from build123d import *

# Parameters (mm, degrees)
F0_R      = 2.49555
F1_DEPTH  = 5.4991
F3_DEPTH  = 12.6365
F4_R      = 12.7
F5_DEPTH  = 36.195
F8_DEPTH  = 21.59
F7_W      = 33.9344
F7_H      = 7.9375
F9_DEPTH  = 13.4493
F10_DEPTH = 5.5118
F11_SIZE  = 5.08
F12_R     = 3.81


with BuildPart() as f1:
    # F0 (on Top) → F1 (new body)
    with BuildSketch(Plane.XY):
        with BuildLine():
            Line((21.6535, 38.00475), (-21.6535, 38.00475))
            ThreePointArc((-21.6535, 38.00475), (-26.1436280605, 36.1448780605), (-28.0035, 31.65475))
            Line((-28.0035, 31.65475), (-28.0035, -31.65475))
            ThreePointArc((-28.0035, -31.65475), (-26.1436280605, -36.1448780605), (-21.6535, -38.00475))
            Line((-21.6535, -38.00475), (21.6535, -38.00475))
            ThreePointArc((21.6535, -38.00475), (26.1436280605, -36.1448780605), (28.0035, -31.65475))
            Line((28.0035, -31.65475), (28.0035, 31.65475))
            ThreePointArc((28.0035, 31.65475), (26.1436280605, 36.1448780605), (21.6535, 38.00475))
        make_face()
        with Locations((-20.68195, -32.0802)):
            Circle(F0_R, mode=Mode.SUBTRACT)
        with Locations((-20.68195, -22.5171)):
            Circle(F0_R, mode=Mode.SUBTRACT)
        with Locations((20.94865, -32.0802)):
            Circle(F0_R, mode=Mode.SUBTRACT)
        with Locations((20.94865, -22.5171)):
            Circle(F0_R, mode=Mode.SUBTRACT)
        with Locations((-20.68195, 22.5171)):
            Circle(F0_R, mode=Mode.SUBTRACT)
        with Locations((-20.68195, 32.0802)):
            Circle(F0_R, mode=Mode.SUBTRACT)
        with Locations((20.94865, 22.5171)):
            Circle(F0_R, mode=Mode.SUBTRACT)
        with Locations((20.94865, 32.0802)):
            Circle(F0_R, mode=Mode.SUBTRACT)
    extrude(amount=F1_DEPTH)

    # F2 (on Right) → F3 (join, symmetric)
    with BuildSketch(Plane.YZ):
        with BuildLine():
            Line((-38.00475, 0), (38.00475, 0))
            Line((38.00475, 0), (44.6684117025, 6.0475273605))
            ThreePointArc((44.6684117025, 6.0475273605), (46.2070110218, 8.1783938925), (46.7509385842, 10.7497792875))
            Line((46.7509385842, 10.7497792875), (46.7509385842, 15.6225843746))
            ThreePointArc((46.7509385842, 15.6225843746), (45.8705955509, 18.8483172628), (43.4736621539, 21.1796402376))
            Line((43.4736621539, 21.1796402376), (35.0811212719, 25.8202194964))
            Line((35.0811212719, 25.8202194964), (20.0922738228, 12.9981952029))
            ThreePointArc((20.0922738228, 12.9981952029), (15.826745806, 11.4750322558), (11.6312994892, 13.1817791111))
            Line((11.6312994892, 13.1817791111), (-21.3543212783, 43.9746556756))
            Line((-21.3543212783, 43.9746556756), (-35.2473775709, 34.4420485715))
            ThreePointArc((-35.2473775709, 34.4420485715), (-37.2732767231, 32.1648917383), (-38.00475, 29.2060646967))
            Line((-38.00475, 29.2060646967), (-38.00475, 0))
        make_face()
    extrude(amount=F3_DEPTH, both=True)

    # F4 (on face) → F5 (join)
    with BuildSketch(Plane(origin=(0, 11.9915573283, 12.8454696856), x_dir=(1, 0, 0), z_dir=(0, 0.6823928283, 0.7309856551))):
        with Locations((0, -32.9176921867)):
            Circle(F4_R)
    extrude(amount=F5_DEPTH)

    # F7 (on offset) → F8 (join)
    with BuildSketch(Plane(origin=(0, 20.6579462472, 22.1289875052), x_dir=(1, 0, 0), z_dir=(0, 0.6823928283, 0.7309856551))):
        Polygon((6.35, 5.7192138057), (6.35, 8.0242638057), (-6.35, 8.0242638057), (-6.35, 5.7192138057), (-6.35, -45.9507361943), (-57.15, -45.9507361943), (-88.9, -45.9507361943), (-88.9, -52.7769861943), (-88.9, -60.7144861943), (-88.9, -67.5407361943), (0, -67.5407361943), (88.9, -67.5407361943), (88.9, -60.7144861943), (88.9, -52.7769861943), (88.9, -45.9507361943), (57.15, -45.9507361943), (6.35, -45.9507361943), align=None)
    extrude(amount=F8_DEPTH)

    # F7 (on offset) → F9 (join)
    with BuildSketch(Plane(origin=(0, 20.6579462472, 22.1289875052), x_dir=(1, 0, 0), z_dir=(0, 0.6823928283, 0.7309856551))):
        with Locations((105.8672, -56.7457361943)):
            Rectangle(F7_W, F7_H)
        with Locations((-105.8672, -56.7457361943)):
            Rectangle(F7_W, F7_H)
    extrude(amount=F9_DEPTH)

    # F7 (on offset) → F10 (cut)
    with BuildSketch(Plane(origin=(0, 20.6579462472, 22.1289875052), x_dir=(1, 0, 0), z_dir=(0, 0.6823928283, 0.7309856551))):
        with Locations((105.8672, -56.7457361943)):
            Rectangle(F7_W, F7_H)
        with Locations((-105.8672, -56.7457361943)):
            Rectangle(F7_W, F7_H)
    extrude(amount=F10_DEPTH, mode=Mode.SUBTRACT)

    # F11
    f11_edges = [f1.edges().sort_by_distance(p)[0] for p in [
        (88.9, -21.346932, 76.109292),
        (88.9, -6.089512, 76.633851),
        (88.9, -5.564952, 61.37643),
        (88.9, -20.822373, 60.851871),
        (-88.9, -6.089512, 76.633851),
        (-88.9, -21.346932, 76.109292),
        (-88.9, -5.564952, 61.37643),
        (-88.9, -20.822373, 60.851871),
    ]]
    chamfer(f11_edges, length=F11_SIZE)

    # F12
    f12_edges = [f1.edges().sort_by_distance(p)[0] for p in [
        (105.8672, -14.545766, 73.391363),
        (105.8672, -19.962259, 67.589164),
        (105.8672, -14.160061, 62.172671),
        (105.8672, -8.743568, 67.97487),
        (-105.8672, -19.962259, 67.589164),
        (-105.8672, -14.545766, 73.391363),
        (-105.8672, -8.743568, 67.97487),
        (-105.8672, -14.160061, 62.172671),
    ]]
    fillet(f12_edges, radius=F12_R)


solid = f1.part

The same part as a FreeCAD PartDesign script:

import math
import FreeCAD as App
import Part
import Sketcher
from FreeCAD import Vector
Q = App.Units.Quantity


def edges_at(feature, points):
    """Names of the edges that pass closest to the given points."""
    edges = feature.Shape.Edges
    near = lambda p: min(range(len(edges)), key=lambda i: edges[i].distToShape(Part.Vertex(*p))[0])
    return sorted({f"Edge{near(p) + 1}" for p in points})

doc = App.newDocument("Part")
params = doc.addObject("Spreadsheet::Sheet", "Params")
for row, (alias, value) in enumerate([
    ("sketch1_radius", "0.25 in"),
    ("sketch1_width", "1.705 in"),
    ("pad1_length", "0.2165 in"),
    ("sketch2_radius", "0.25 in"),
    ("pad2_length", "0.995 in"),
    ("sketch3_diameter", "1 in"),
    ("pad3_length", "1.425 in"),
    ("sketch4_width", "7 in"),
    ("sketch4_width2", "0.5 in"),
    ("sketch4_height", "0.85 in"),
    ("sketch4_height2", "2.125 in"),
    ("pad4_length", "0.85 in"),
    ("sketch5_width", "1.336 in"),
    ("sketch5_height", "0.3125 in"),
    ("pad5_length", "0.5295 in"),
    ("sketch6_width", "1.336 in"),
    ("sketch6_height", "0.3125 in"),
    ("pocket1_length", "0.217 in"),
    ("chamfer_size", "0.2 in"),
    ("fillet_radius", "0.15 in"),
], start=1):
    params.set(f"A{row}", alias)
    params.set(f"B{row}", "=" + value)
    params.setAlias(f"B{row}", alias)

body = doc.addObject("PartDesign::Body", "Body")

sketch1 = body.newObject("Sketcher::SketchObject", "Sketch")
sketch1.AttachmentSupport = (doc.getObject("XY_Plane"), [""])
sketch1.MapMode = "FlatFace"
sketch1.addGeometry([
    Part.LineSegment(Vector(21.6535, 38.00475, 0), Vector(-21.6535, 38.00475, 0)),
    Part.ArcOfCircle(Part.Circle(Vector(-21.6535, 31.65475, 0), Vector(0, 0, 1), 6.35), math.radians(90), math.radians(180)),
    Part.LineSegment(Vector(-28.0035, 31.65475, 0), Vector(-28.0035, -31.65475, 0)),
    Part.ArcOfCircle(Part.Circle(Vector(-21.6535, -31.65475, 0), Vector(0, 0, 1), 6.35), math.radians(180), math.radians(270)),
    Part.LineSegment(Vector(-21.6535, -38.00475, 0), Vector(21.6535, -38.00475, 0)),
    Part.ArcOfCircle(Part.Circle(Vector(21.6535, -31.65475, 0), Vector(0, 0, 1), 6.35), math.radians(-90), math.radians(0)),
    Part.LineSegment(Vector(28.0035, -31.65475, 0), Vector(28.0035, 31.65475, 0)),
    Part.ArcOfCircle(Part.Circle(Vector(21.6535, 31.65475, 0), Vector(0, 0, 1), 6.35), math.radians(0), math.radians(90)),
    Part.Circle(Vector(-20.68195, -32.0802, 0), Vector(0, 0, 1), 2.49555),
    Part.Circle(Vector(-20.68195, -22.5171, 0), Vector(0, 0, 1), 2.49555),
    Part.Circle(Vector(20.94865, -32.0802, 0), Vector(0, 0, 1), 2.49555),
    Part.Circle(Vector(20.94865, -22.5171, 0), Vector(0, 0, 1), 2.49555),
    Part.Circle(Vector(-20.68195, 22.5171, 0), Vector(0, 0, 1), 2.49555),
    Part.Circle(Vector(-20.68195, 32.0802, 0), Vector(0, 0, 1), 2.49555),
    Part.Circle(Vector(20.94865, 22.5171, 0), Vector(0, 0, 1), 2.49555),
    Part.Circle(Vector(20.94865, 32.0802, 0), Vector(0, 0, 1), 2.49555),
], False)
sketch1.addConstraint([
    Sketcher.Constraint("Tangent", 0, 2, 1, 1),
    Sketcher.Constraint("Tangent", 1, 2, 2, 1),
    Sketcher.Constraint("Tangent", 2, 2, 3, 1),
    Sketcher.Constraint("Tangent", 3, 2, 4, 1),
    Sketcher.Constraint("Tangent", 4, 2, 5, 1),
    Sketcher.Constraint("Tangent", 5, 2, 6, 1),
    Sketcher.Constraint("Tangent", 6, 2, 7, 1),
    Sketcher.Constraint("Tangent", 7, 2, 0, 1),
    Sketcher.Constraint("Horizontal", 0),
    Sketcher.Constraint("Vertical", 2),
    Sketcher.Constraint("Horizontal", 4),
    Sketcher.Constraint("Vertical", 6),
    Sketcher.Constraint("Equal", 1, 3),
    Sketcher.Constraint("Equal", 3, 5),
    Sketcher.Constraint("Equal", 5, 7),
    Sketcher.Constraint("Equal", 8, 9),
    Sketcher.Constraint("Equal", 9, 10),
    Sketcher.Constraint("Equal", 10, 11),
    Sketcher.Constraint("Equal", 11, 12),
    Sketcher.Constraint("Equal", 12, 13),
    Sketcher.Constraint("Equal", 13, 14),
    Sketcher.Constraint("Equal", 14, 15),
    Sketcher.Constraint("Symmetric", 1, 3, 5, 3, -1, 1),
    Sketcher.Constraint("Symmetric", 9, 3, 12, 3, -1),
    Sketcher.Constraint("Symmetric", 8, 3, 13, 3, -1),
    Sketcher.Constraint("Symmetric", 11, 3, 14, 3, -1),
    Sketcher.Constraint("Symmetric", 10, 3, 15, 3, -1),
    Sketcher.Constraint("Horizontal", 8, 3, 10, 3),
    Sketcher.Constraint("Horizontal", 9, 3, 11, 3),
    Sketcher.Constraint("Vertical", 8, 3, 9, 3),
    Sketcher.Constraint("Vertical", 10, 3, 11, 3),
    Sketcher.Constraint("Radius", 1, Q("0.25 in")),
    Sketcher.Constraint("Diameter", 8, Q("0.1965 in")),
    Sketcher.Constraint("DistanceX", 0, 2, 0, 1, Q("1.705 in")),
    Sketcher.Constraint("DistanceY", 2, 2, 2, 1, Q("2.4925 in")),
    Sketcher.Constraint("DistanceY", 8, 3, -1, 1, Q("1.263 in")),
    Sketcher.Constraint("DistanceX", 8, 3, 10, 3, Q("1.639 in")),
    Sketcher.Constraint("DistanceY", 9, 3, 12, 3, Q("1.773 in")),
    Sketcher.Constraint("DistanceX", 8, 3, -1, 1, Q("20.68195 mm")),
])
sketch1.setExpression("Constraints[31]", "Params.sketch1_radius")
sketch1.setExpression("Constraints[33]", "Params.sketch1_width")
pad1 = body.newObject("PartDesign::Pad", "Pad")
pad1.Profile = sketch1
pad1.setExpression("Length", "Params.pad1_length")

sketch2 = body.newObject("Sketcher::SketchObject", "Sketch001")
sketch2.AttachmentSupport = (doc.getObject("YZ_Plane"), [""])
sketch2.MapMode = "FlatFace"
sketch2.addGeometry([
    Part.LineSegment(Vector(-38.00475, 0, 0), Vector(38.00475, 0, 0)),
    Part.LineSegment(Vector(38.00475, 0, 0), Vector(44.668412, 6.047527, 0)),
    Part.ArcOfCircle(Part.Circle(Vector(40.400939, 10.749779, 0), Vector(0, 0, 1), 6.35), math.radians(-47.775058), math.radians(0)),
    Part.LineSegment(Vector(46.750939, 10.749779, 0), Vector(46.750939, 15.622584, 0)),
    Part.ArcOfCircle(Part.Circle(Vector(40.400939, 15.622584, 0), Vector(0, 0, 1), 6.35), math.radians(0), math.radians(61.059999)),
    Part.LineSegment(Vector(43.473662, 21.17964, 0), Vector(35.081121, 25.820219, 0)),
    Part.LineSegment(Vector(35.081121, 25.820219, 0), Vector(20.092274, 12.998195, 0)),
    Part.ArcOfCircle(Part.Circle(Vector(15.964494, 17.823538, 0), Vector(0, 0, 1), 6.35), math.radians(-133.030911), math.radians(-49.455075)),
    Part.LineSegment(Vector(11.631299, 13.181779, 0), Vector(-21.354321, 43.974656, 0)),
    Part.LineSegment(Vector(-21.354321, 43.974656, 0), Vector(-35.247378, 34.442049, 0)),
    Part.ArcOfCircle(Part.Circle(Vector(-31.65475, 29.206065, 0), Vector(0, 0, 1), 6.35), math.radians(124.455648), math.radians(180)),
    Part.LineSegment(Vector(-38.00475, 29.206065, 0), Vector(-38.00475, 0, 0)),
], False)
sketch2.addConstraint([
    Sketcher.Constraint("Coincident", 0, 2, 1, 1),
    Sketcher.Constraint("Tangent", 1, 2, 2, 1),
    Sketcher.Constraint("Tangent", 2, 2, 3, 1),
    Sketcher.Constraint("Tangent", 3, 2, 4, 1),
    Sketcher.Constraint("Tangent", 4, 2, 5, 1),
    Sketcher.Constraint("Coincident", 5, 2, 6, 1),
    Sketcher.Constraint("Tangent", 6, 2, 7, 2),
    Sketcher.Constraint("Tangent", 7, 1, 8, 1),
    Sketcher.Constraint("Coincident", 8, 2, 9, 1),
    Sketcher.Constraint("Tangent", 9, 2, 10, 1),
    Sketcher.Constraint("Tangent", 10, 2, 11, 1),
    Sketcher.Constraint("Coincident", 11, 2, 0, 1),
    Sketcher.Constraint("Horizontal", 0),
    Sketcher.Constraint("Vertical", 3),
    Sketcher.Constraint("Vertical", 11),
    Sketcher.Constraint("Equal", 2, 4),
    Sketcher.Constraint("Equal", 4, 7),
    Sketcher.Constraint("Equal", 7, 10),
    Sketcher.Constraint("Symmetric", 0, 2, 11, 2, -1, 1),
    Sketcher.Constraint("Radius", 2, Q("0.25 in")),
    Sketcher.Constraint("Angle", 5, Q("151.059999 deg")),
    Sketcher.Constraint("DistanceX", 0, 1, 0, 2, Q("2.9925 in")),
    Sketcher.Constraint("DistanceY", 4, 2, 5, 2, Q("0.1827 in")),
    Sketcher.Constraint("DistanceX", -1, 1, 7, 1, Q("11.631299 mm")),
    Sketcher.Constraint("DistanceY", 2, 3, 7, 1, Q("2.432 mm")),
    Sketcher.Constraint("Distance", 1, Q("8.998721 mm")),
    Sketcher.Constraint("DistanceY", 3, 1, 3, 2, Q("4.872805 mm")),
    Sketcher.Constraint("DistanceY", 11, 2, 11, 1, Q("29.206065 mm")),
    Sketcher.Constraint("DistanceX", -1, 1, 2, 3, Q("40.400939 mm")),
    Sketcher.Constraint("DistanceY", -1, 1, 7, 3, Q("17.823538 mm")),
    Sketcher.Constraint("DistanceX", 8, 2, -1, 1, Q("21.354321 mm")),
])
sketch2.setExpression("Constraints[19]", "Params.sketch2_radius")
pad2 = body.newObject("PartDesign::Pad", "Pad001")
pad2.Profile = sketch2
pad2.setExpression("Length", "Params.pad2_length")
pad2.Midplane = True

sketch3 = body.newObject("Sketcher::SketchObject", "Sketch002")
sketch3.Placement = App.Placement(Vector(0, 11.991557, 12.84547), App.Rotation(Vector(1, 0, 0), Vector(0, 0.730985655, -0.682392828), Vector(0, 0.682392828, 0.730985655), "ZXY"))
sketch3.addGeometry(Part.Circle(Vector(0, -32.917692, 0), Vector(0, 0, 1), 12.7), False)
sketch3.addConstraint([
    Sketcher.Constraint("PointOnObject", 0, 3, -2),
    Sketcher.Constraint("Diameter", 0, Q("1 in")),
    Sketcher.Constraint("DistanceY", 0, 3, -1, 1, Q("32.917692 mm")),
])
sketch3.setExpression("Constraints[1]", "Params.sketch3_diameter")
pad3 = body.newObject("PartDesign::Pad", "Pad002")
pad3.Profile = sketch3
pad3.setExpression("Length", "Params.pad3_length")

sketch4 = body.newObject("Sketcher::SketchObject", "Sketch003")
sketch4.Placement = App.Placement(Vector(0, 20.657946, 22.128988), App.Rotation(Vector(1, 0, 0), Vector(0, 0.730985655, -0.682392828), Vector(0, 0.682392828, 0.730985655), "ZXY"))
sketch4.addGeometry([
    Part.LineSegment(Vector(6.35, 8.024264, 0), Vector(-6.35, 8.024264, 0)),
    Part.LineSegment(Vector(-6.35, 8.024264, 0), Vector(-6.35, -45.950736, 0)),
    Part.LineSegment(Vector(-6.35, -45.950736, 0), Vector(-88.9, -45.950736, 0)),
    Part.LineSegment(Vector(-88.9, -45.950736, 0), Vector(-88.9, -67.540736, 0)),
    Part.LineSegment(Vector(-88.9, -67.540736, 0), Vector(88.9, -67.540736, 0)),
    Part.LineSegment(Vector(88.9, -67.540736, 0), Vector(88.9, -45.950736, 0)),
    Part.LineSegment(Vector(88.9, -45.950736, 0), Vector(6.35, -45.950736, 0)),
    Part.LineSegment(Vector(6.35, -45.950736, 0), Vector(6.35, 8.024264, 0)),
], False)
sketch4.addConstraint([
    Sketcher.Constraint("Coincident", 0, 2, 1, 1),
    Sketcher.Constraint("Coincident", 1, 2, 2, 1),
    Sketcher.Constraint("Coincident", 2, 2, 3, 1),
    Sketcher.Constraint("Coincident", 3, 2, 4, 1),
    Sketcher.Constraint("Coincident", 4, 2, 5, 1),
    Sketcher.Constraint("Coincident", 5, 2, 6, 1),
    Sketcher.Constraint("Coincident", 6, 2, 7, 1),
    Sketcher.Constraint("Coincident", 7, 2, 0, 1),
    Sketcher.Constraint("Horizontal", 0),
    Sketcher.Constraint("Vertical", 1),
    Sketcher.Constraint("Horizontal", 2),
    Sketcher.Constraint("Vertical", 3),
    Sketcher.Constraint("Horizontal", 4),
    Sketcher.Constraint("Vertical", 5),
    Sketcher.Constraint("Horizontal", 6),
    Sketcher.Constraint("Vertical", 7),
    Sketcher.Constraint("Symmetric", 2, 2, 5, 2, -2),
    Sketcher.Constraint("Equal", 2, 6),
    Sketcher.Constraint("DistanceX", 4, 1, 4, 2, Q("7 in")),
    Sketcher.Constraint("DistanceX", 0, 2, 0, 1, Q("0.5 in")),
    Sketcher.Constraint("DistanceY", 3, 2, 3, 1, Q("0.85 in")),
    Sketcher.Constraint("DistanceY", 1, 2, 1, 1, Q("2.125 in")),
    Sketcher.Constraint("DistanceY", -1, 1, 0, 2, Q("8.024264 mm")),
])
sketch4.setExpression("Constraints[18]", "Params.sketch4_width")
sketch4.setExpression("Constraints[19]", "Params.sketch4_width2")
sketch4.setExpression("Constraints[20]", "Params.sketch4_height")
sketch4.setExpression("Constraints[21]", "Params.sketch4_height2")
pad4 = body.newObject("PartDesign::Pad", "Pad003")
pad4.Profile = sketch4
pad4.setExpression("Length", "Params.pad4_length")

sketch5 = body.newObject("Sketcher::SketchObject", "Sketch004")
sketch5.Placement = App.Placement(Vector(0, 20.657946, 22.128988), App.Rotation(Vector(1, 0, 0), Vector(0, 0.730985655, -0.682392828), Vector(0, 0.682392828, 0.730985655), "ZXY"))
sketch5.addGeometry([
    Part.LineSegment(Vector(88.9, -52.776986, 0), Vector(88.9, -60.714486, 0)),
    Part.LineSegment(Vector(88.9, -60.714486, 0), Vector(122.8344, -60.714486, 0)),
    Part.LineSegment(Vector(122.8344, -60.714486, 0), Vector(122.8344, -52.776986, 0)),
    Part.LineSegment(Vector(122.8344, -52.776986, 0), Vector(88.9, -52.776986, 0)),
    Part.LineSegment(Vector(-122.8344, -52.776986, 0), Vector(-122.8344, -60.714486, 0)),
    Part.LineSegment(Vector(-122.8344, -60.714486, 0), Vector(-88.9, -60.714486, 0)),
    Part.LineSegment(Vector(-88.9, -60.714486, 0), Vector(-88.9, -52.776986, 0)),
    Part.LineSegment(Vector(-88.9, -52.776986, 0), Vector(-122.8344, -52.776986, 0)),
], False)
sketch5.addConstraint([
    Sketcher.Constraint("Coincident", 0, 2, 1, 1),
    Sketcher.Constraint("Coincident", 1, 2, 2, 1),
    Sketcher.Constraint("Coincident", 2, 2, 3, 1),
    Sketcher.Constraint("Coincident", 3, 2, 0, 1),
    Sketcher.Constraint("Coincident", 4, 2, 5, 1),
    Sketcher.Constraint("Coincident", 5, 2, 6, 1),
    Sketcher.Constraint("Coincident", 6, 2, 7, 1),
    Sketcher.Constraint("Coincident", 7, 2, 4, 1),
    Sketcher.Constraint("Vertical", 0),
    Sketcher.Constraint("Horizontal", 1),
    Sketcher.Constraint("Vertical", 2),
    Sketcher.Constraint("Horizontal", 3),
    Sketcher.Constraint("Vertical", 4),
    Sketcher.Constraint("Horizontal", 5),
    Sketcher.Constraint("Vertical", 6),
    Sketcher.Constraint("Horizontal", 7),
    Sketcher.Constraint("Symmetric", 1, 2, 4, 2, -2),
    Sketcher.Constraint("Symmetric", 3, 2, 6, 2, -2),
    Sketcher.Constraint("DistanceX", 5, 2, 0, 2, Q("7 in")),
    Sketcher.Constraint("DistanceX", 1, 1, 1, 2, Q("1.336 in")),
    Sketcher.Constraint("DistanceY", 0, 2, 0, 1, Q("0.3125 in")),
    Sketcher.Constraint("DistanceY", 0, 2, -1, 1, Q("60.714486 mm")),
])
sketch5.setExpression("Constraints[19]", "Params.sketch5_width")
sketch5.setExpression("Constraints[20]", "Params.sketch5_height")
pad5 = body.newObject("PartDesign::Pad", "Pad004")
pad5.Profile = sketch5
pad5.setExpression("Length", "Params.pad5_length")

sketch6 = body.newObject("Sketcher::SketchObject", "Sketch005")
sketch6.Placement = App.Placement(Vector(0, 20.657946, 22.128988), App.Rotation(Vector(1, 0, 0), Vector(0, 0.730985655, -0.682392828), Vector(0, 0.682392828, 0.730985655), "ZXY"))
sketch6.addGeometry([
    Part.LineSegment(Vector(88.9, -52.776986, 0), Vector(88.9, -60.714486, 0)),
    Part.LineSegment(Vector(88.9, -60.714486, 0), Vector(122.8344, -60.714486, 0)),
    Part.LineSegment(Vector(122.8344, -60.714486, 0), Vector(122.8344, -52.776986, 0)),
    Part.LineSegment(Vector(122.8344, -52.776986, 0), Vector(88.9, -52.776986, 0)),
    Part.LineSegment(Vector(-122.8344, -52.776986, 0), Vector(-122.8344, -60.714486, 0)),
    Part.LineSegment(Vector(-122.8344, -60.714486, 0), Vector(-88.9, -60.714486, 0)),
    Part.LineSegment(Vector(-88.9, -60.714486, 0), Vector(-88.9, -52.776986, 0)),
    Part.LineSegment(Vector(-88.9, -52.776986, 0), Vector(-122.8344, -52.776986, 0)),
], False)
sketch6.addConstraint([
    Sketcher.Constraint("Coincident", 0, 2, 1, 1),
    Sketcher.Constraint("Coincident", 1, 2, 2, 1),
    Sketcher.Constraint("Coincident", 2, 2, 3, 1),
    Sketcher.Constraint("Coincident", 3, 2, 0, 1),
    Sketcher.Constraint("Coincident", 4, 2, 5, 1),
    Sketcher.Constraint("Coincident", 5, 2, 6, 1),
    Sketcher.Constraint("Coincident", 6, 2, 7, 1),
    Sketcher.Constraint("Coincident", 7, 2, 4, 1),
    Sketcher.Constraint("Vertical", 0),
    Sketcher.Constraint("Horizontal", 1),
    Sketcher.Constraint("Vertical", 2),
    Sketcher.Constraint("Horizontal", 3),
    Sketcher.Constraint("Vertical", 4),
    Sketcher.Constraint("Horizontal", 5),
    Sketcher.Constraint("Vertical", 6),
    Sketcher.Constraint("Horizontal", 7),
    Sketcher.Constraint("Symmetric", 1, 2, 4, 2, -2),
    Sketcher.Constraint("Symmetric", 3, 2, 6, 2, -2),
    Sketcher.Constraint("DistanceX", 5, 2, 0, 2, Q("7 in")),
    Sketcher.Constraint("DistanceX", 1, 1, 1, 2, Q("1.336 in")),
    Sketcher.Constraint("DistanceY", 0, 2, 0, 1, Q("0.3125 in")),
    Sketcher.Constraint("DistanceY", 0, 2, -1, 1, Q("60.714486 mm")),
])
sketch6.setExpression("Constraints[19]", "Params.sketch6_width")
sketch6.setExpression("Constraints[20]", "Params.sketch6_height")
pocket1 = body.newObject("PartDesign::Pocket", "Pocket")
pocket1.Profile = sketch6
pocket1.setExpression("Length", "Params.pocket1_length")
pocket1.Reversed = True
doc.recompute()

chamfer = body.newObject("PartDesign::Chamfer", "Chamfer")
chamfer.Base = (pocket1, edges_at(pocket1, [
    (88.9, -21.347, 76.109),
    (88.9, -6.09, 76.634),
    (88.9, -5.565, 61.376),
    (88.9, -20.822, 60.852),
    (-88.9, -6.09, 76.634),
    (-88.9, -21.347, 76.109),
    (-88.9, -5.565, 61.376),
    (-88.9, -20.822, 60.852),
]))
chamfer.setExpression("Size", "Params.chamfer_size")
doc.recompute()

fillet = body.newObject("PartDesign::Fillet", "Fillet")
fillet.Base = (chamfer, edges_at(chamfer, [
    (105.867, -14.546, 73.391),
    (105.867, -19.962, 67.589),
    (105.867, -14.16, 62.173),
    (105.867, -8.744, 67.975),
    (-105.867, -19.962, 67.589),
    (-105.867, -14.546, 73.391),
    (-105.867, -8.744, 67.975),
    (-105.867, -14.16, 62.173),
]))
fillet.setExpression("Radius", "Params.fillet_radius")

doc.recompute()
